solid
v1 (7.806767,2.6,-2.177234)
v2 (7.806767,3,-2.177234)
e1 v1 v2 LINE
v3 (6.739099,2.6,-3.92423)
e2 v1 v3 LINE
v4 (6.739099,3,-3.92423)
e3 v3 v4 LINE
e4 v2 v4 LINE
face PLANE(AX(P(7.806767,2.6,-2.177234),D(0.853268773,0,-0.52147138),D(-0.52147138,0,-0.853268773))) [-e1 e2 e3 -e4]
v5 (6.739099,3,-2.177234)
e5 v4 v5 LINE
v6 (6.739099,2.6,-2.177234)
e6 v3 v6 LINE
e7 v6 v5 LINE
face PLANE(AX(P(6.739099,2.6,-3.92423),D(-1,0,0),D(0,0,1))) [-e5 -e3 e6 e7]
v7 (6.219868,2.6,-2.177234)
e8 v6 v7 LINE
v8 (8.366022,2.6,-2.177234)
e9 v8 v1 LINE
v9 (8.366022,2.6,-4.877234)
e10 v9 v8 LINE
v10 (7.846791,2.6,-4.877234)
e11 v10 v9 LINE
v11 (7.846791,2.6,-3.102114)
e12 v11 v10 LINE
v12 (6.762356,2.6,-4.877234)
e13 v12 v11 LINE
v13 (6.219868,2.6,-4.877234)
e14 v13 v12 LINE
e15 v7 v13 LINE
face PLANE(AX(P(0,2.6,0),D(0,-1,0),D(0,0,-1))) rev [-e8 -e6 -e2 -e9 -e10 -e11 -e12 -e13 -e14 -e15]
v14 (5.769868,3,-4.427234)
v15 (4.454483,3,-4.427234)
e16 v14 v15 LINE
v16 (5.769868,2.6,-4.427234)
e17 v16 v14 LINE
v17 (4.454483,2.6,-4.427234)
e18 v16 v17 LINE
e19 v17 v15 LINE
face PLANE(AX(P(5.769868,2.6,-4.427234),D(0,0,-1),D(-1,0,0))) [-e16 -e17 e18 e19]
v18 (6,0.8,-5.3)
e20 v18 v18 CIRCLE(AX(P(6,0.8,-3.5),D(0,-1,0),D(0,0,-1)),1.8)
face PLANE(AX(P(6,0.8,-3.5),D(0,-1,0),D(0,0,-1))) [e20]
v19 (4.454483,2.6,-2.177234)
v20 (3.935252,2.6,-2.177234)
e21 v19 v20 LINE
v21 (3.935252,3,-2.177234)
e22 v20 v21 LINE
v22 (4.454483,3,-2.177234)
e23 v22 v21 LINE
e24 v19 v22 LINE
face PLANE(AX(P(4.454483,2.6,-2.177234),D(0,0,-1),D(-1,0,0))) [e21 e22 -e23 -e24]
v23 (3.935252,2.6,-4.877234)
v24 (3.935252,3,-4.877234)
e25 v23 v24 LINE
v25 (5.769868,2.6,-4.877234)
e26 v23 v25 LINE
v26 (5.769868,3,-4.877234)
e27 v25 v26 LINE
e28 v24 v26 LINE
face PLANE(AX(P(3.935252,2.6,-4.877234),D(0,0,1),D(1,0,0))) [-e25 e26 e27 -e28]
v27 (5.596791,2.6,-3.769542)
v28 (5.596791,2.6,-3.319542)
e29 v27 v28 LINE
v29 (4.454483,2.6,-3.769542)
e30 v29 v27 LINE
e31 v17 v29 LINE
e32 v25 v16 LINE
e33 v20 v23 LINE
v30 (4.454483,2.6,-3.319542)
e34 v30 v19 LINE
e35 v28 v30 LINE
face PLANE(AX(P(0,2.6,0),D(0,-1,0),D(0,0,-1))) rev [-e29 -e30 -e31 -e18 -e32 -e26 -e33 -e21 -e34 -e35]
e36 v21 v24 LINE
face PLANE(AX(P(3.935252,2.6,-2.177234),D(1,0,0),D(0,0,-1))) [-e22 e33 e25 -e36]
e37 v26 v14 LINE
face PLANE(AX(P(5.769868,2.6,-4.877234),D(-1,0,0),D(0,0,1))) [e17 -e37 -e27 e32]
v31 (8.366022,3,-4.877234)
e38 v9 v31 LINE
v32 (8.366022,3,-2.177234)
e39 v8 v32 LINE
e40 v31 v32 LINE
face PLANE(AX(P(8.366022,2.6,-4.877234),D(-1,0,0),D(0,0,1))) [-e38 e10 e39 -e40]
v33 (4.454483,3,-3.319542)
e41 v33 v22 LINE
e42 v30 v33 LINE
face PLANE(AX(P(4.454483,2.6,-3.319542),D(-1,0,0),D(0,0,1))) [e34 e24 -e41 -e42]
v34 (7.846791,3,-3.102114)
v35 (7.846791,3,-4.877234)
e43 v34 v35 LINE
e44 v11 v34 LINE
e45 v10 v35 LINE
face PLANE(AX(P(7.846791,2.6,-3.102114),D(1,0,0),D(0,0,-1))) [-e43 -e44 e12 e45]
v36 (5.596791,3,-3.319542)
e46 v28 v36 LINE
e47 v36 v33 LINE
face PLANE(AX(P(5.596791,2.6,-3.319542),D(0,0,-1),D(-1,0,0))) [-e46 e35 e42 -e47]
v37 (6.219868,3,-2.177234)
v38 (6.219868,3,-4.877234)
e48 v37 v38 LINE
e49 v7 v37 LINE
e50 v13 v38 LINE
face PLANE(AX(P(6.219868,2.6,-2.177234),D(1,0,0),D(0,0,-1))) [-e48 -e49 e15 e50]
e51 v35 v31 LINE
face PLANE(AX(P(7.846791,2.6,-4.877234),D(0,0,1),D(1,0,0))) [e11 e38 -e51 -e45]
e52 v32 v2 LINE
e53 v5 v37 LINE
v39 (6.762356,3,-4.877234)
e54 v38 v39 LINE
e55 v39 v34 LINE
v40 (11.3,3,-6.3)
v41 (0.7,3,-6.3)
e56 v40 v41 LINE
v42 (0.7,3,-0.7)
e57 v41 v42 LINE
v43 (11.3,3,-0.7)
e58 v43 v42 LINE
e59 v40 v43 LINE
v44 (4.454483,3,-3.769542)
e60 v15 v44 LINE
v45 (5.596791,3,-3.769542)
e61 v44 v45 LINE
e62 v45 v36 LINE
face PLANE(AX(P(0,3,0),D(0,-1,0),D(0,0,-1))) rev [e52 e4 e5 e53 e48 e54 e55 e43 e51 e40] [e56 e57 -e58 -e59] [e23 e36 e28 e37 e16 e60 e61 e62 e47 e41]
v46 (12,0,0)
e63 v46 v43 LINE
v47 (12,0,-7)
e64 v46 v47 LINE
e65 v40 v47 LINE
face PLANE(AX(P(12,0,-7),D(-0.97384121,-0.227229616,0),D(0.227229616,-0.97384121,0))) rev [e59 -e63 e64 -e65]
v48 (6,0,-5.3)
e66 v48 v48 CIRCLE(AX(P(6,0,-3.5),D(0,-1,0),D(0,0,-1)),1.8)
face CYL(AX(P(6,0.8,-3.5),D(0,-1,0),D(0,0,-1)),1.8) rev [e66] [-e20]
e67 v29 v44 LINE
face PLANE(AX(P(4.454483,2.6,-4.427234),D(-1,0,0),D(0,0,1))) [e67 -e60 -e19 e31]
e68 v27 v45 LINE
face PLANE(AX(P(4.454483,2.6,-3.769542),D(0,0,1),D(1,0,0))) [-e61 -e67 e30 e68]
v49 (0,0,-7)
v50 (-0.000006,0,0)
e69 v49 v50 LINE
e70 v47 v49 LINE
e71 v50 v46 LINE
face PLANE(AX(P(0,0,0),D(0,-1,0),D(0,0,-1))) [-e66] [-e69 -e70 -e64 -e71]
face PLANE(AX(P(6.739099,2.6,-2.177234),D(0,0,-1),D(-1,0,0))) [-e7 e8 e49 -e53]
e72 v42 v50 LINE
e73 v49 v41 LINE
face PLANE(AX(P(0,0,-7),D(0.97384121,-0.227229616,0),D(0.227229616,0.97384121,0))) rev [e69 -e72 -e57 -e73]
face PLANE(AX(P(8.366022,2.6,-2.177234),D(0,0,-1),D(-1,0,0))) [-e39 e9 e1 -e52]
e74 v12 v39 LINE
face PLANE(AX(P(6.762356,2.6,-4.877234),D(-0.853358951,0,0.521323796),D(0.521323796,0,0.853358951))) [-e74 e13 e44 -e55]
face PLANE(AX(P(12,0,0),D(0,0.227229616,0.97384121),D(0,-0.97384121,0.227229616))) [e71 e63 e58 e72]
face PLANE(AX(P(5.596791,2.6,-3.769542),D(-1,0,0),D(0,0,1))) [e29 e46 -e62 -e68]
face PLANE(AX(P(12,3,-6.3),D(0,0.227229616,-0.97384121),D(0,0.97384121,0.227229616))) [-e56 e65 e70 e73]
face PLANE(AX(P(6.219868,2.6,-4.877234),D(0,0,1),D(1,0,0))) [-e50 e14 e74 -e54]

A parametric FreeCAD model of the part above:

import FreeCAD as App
import Part
import Sketcher

V = App.Vector
Q = App.Units.Quantity


def add_polygon(sketch, points):
    """Adds a closed chain of lines whose ends are joined by coincident constraints."""
    first, n = sketch.GeometryCount, len(points)
    for a, b in zip(points, points[1:] + points[:1]):
        sketch.addGeometry(Part.LineSegment(App.Vector(*a, 0), App.Vector(*b, 0)), False)
    for i in range(n):
        sketch.addConstraint(Sketcher.Constraint("Coincident", first + i, 2, first + (i + 1) % n, 1))

doc = App.newDocument("Part")
body = doc.addObject("PartDesign::Body", "Body")

# Sketch on XZ plane
sketch1 = doc.addObject("Sketcher::SketchObject", "Sketch")
body.addObject(sketch1)
sketch1.AttachmentSupport = (doc.XZ_Plane, [""])
sketch1.MapMode = "FlatFace"
add_polygon(sketch1, [(0, -7), (0, 0), (12, 0), (12, -7)])  # lines 0-3
sketch1.addConstraint(Sketcher.Constraint("Vertical", 0))
sketch1.addConstraint(Sketcher.Constraint("Horizontal", 1))
sketch1.addConstraint(Sketcher.Constraint("Vertical", 2))
sketch1.addConstraint(Sketcher.Constraint("Horizontal", 3))
sketch1.addConstraint(Sketcher.Constraint("Coincident", 0, 2, -1, 1))
sketch1.addConstraint(Sketcher.Constraint("DistanceX", 1, 1, 1, 2, Q("12 mm")))
sketch1.addConstraint(Sketcher.Constraint("DistanceY", 0, 1, 0, 2, Q("7 mm")))
pad1 = doc.addObject("PartDesign::Pad", "Pad")
body.addObject(pad1)
pad1.Profile = sketch1
pad1.Length = 3
pad1.Reversed = True

# Sketch on XY plane
sketch2 = doc.addObject("Sketcher::SketchObject", "Sketch001")
body.addObject(sketch2)
sketch2.AttachmentSupport = (doc.XY_Plane, [""])
sketch2.MapMode = "FlatFace"
add_polygon(sketch2, [(0, 0), (0.7, 3), (0, 3)])  # lines 0-2
add_polygon(sketch2, [(11.3, 3), (12, 0), (12, 3)])  # lines 3-5
sketch2.addConstraint(Sketcher.Constraint("Horizontal", 1))
sketch2.addConstraint(Sketcher.Constraint("Vertical", 2))
sketch2.addConstraint(Sketcher.Constraint("Vertical", 4))
sketch2.addConstraint(Sketcher.Constraint("Horizontal", 5))
sketch2.addConstraint(Sketcher.Constraint("Coincident", 2, 2, -1, 1))
sketch2.addConstraint(Sketcher.Constraint("PointOnObject", 3, 2, -1))
sketch2.addConstraint(Sketcher.Constraint("Horizontal", 1, 2, 4, 2))
sketch2.addConstraint(Sketcher.Constraint("Equal", 1, 5))
sketch2.addConstraint(Sketcher.Constraint("DistanceY", 2, 2, 2, 1, Q("3 mm")))
sketch2.addConstraint(Sketcher.Constraint("DistanceX", 1, 2, 1, 1, Q("0.7 mm")))
sketch2.addConstraint(Sketcher.Constraint("DistanceX", -1, 1, 3, 2, Q("12 mm")))
pocket1 = doc.addObject("PartDesign::Pocket", "Pocket")
body.addObject(pocket1)
pocket1.Profile = sketch2
pocket1.Length = 7

# Sketch on YZ plane
sketch3 = doc.addObject("Sketcher::SketchObject", "Sketch002")
body.addObject(sketch3)
sketch3.AttachmentSupport = (doc.YZ_Plane, [""])
sketch3.MapMode = "FlatFace"
add_polygon(sketch3, [(0, 0), (3, -0.7), (3, 0)])  # lines 0-2
add_polygon(sketch3, [(3, -7), (3, -6.3), (0, -7)])  # lines 3-5
sketch3.addConstraint(Sketcher.Constraint("Vertical", 1))
sketch3.addConstraint(Sketcher.Constraint("Horizontal", 2))
sketch3.addConstraint(Sketcher.Constraint("Vertical", 3))
sketch3.addConstraint(Sketcher.Constraint("Horizontal", 5))
sketch3.addConstraint(Sketcher.Constraint("Coincident", 2, 2, -1, 1))
sketch3.addConstraint(Sketcher.Constraint("PointOnObject", 4, 2, -2))
sketch3.addConstraint(Sketcher.Constraint("Vertical", 1, 2, 3, 2))
sketch3.addConstraint(Sketcher.Constraint("Equal", 1, 3))
sketch3.addConstraint(Sketcher.Constraint("DistanceX", 2, 2, 2, 1, Q("3 mm")))
sketch3.addConstraint(Sketcher.Constraint("DistanceY", 1, 1, 1, 2, Q("0.7 mm")))
sketch3.addConstraint(Sketcher.Constraint("DistanceY", 4, 2, -1, 1, Q("7 mm")))
pocket2 = doc.addObject("PartDesign::Pocket", "Pocket001")
body.addObject(pocket2)
pocket2.Profile = sketch3
pocket2.Type = "ThroughAll"
pocket2.Midplane = True

# Sketch on XZ plane
sketch4 = doc.addObject("Sketcher::SketchObject", "Sketch003")
body.addObject(sketch4)
sketch4.AttachmentSupport = (doc.XZ_Plane, [""])
sketch4.MapMode = "FlatFace"
sketch4.addGeometry(Part.Circle(V(6, -3.5, 0), V(0, 0, 1), 1.8), False)
sketch4.addConstraint(Sketcher.Constraint("Diameter", 0, Q("3.6 mm")))
sketch4.addConstraint(Sketcher.Constraint("DistanceX", -1, 1, 0, 3, Q("6 mm")))
sketch4.addConstraint(Sketcher.Constraint("DistanceY", 0, 3, -1, 1, Q("3.5 mm")))
pocket3 = doc.addObject("PartDesign::Pocket", "Pocket002")
body.addObject(pocket3)
pocket3.Profile = sketch4
pocket3.Length = 0.8

# Sketch on XZ plane
sketch5 = doc.addObject("Sketcher::SketchObject", "Sketch004")
body.addObject(sketch5)
sketch5.AttachmentSupport = (doc.XZ_Plane, [""])
sketch5.MapMode = "FlatFace"
sketch5.AttachmentOffset = App.Placement(V(0, 0, -3), App.Rotation())
add_polygon(sketch5, [(3.94, -4.88), (3.94, -2.18), (4.45, -2.18), (4.45, -3.32), (5.6, -3.32), (5.6, -3.77), (4.45, -3.77), (4.45, -4.43), (5.77, -4.43), (5.77, -4.88)])  # lines 0-9
add_polygon(sketch5, [(6.22, -4.88), (6.22, -2.18), (6.74, -2.18), (6.74, -3.92), (7.81, -2.18), (8.37, -2.18), (8.37, -4.88), (7.85, -4.88), (7.85, -3.1), (6.76, -4.88)])  # lines 10-19
sketch5.addConstraint(Sketcher.Constraint("Vertical", 0))
sketch5.addConstraint(Sketcher.Constraint("Horizontal", 1))
sketch5.addConstraint(Sketcher.Constraint("Vertical", 2))
sketch5.addConstraint(Sketcher.Constraint("Horizontal", 3))
sketch5.addConstraint(Sketcher.Constraint("Vertical", 4))
sketch5.addConstraint(Sketcher.Constraint("Horizontal", 5))
sketch5.addConstraint(Sketcher.Constraint("Vertical", 6))
sketch5.addConstraint(Sketcher.Constraint("Horizontal", 7))
sketch5.addConstraint(Sketcher.Constraint("Vertical", 8))
sketch5.addConstraint(Sketcher.Constraint("Horizontal", 9))
sketch5.addConstraint(Sketcher.Constraint("Vertical", 10))
sketch5.addConstraint(Sketcher.Constraint("Horizontal", 11))
sketch5.addConstraint(Sketcher.Constraint("Vertical", 12))
sketch5.addConstraint(Sketcher.Constraint("Horizontal", 14))
sketch5.addConstraint(Sketcher.Constraint("Vertical", 15))
sketch5.addConstraint(Sketcher.Constraint("Horizontal", 16))
sketch5.addConstraint(Sketcher.Constraint("Vertical", 17))
sketch5.addConstraint(Sketcher.Constraint("Horizontal", 19))
sketch5.addConstraint(Sketcher.Constraint("Horizontal", 1, 2, 10, 2))
sketch5.addConstraint(Sketcher.Constraint("Horizontal", 11, 2, 13, 2))
sketch5.addConstraint(Sketcher.Constraint("Horizontal", 9, 2, 15, 2))
sketch5.addConstraint(Sketcher.Constraint("Horizontal", 16, 2, 18, 2))
sketch5.addConstraint(Sketcher.Constraint("Vertical", 2, 2, 5, 2))
sketch5.addConstraint(Sketcher.Constraint("Equal", 1, 11))
sketch5.addConstraint(Sketcher.Constraint("Equal", 11, 16))
sketch5.addConstraint(Sketcher.Constraint("Equal", 5, 2))
sketch5.addConstraint(Sketcher.Constraint("Equal", 4, 8))
sketch5.addConstraint(Sketcher.Constraint("DistanceY", 0, 1, 0, 2, Q("2.7 mm")))
sketch5.addConstraint(Sketcher.Constraint("DistanceY", 4, 2, 4, 1, Q("0.45 mm")))
sketch5.addConstraint(Sketcher.Constraint("DistanceX", 4, 2, 16, 2, Q("2.25 mm")))
sketch5.addConstraint(Sketcher.Constraint("DistanceX", 8, 2, 19, 2, Q("0.45 mm")))
sketch5.addConstraint(Sketcher.Constraint("DistanceX", 1, 1, 1, 2, Q("0.519231 mm")))
sketch5.addConstraint(Sketcher.Constraint("DistanceY", 17, 1, 17, 2, Q("1.77512 mm")))
sketch5.addConstraint(Sketcher.Constraint("DistanceX", -1, 1, 11, 2, Q("6.739099 mm")))
sketch5.addConstraint(Sketcher.Constraint("DistanceX", 10, 2, 13, 2, Q("1.586899 mm")))
sketch5.addConstraint(Sketcher.Constraint("DistanceX", 3, 1, 3, 2, Q("1.142308 mm")))
sketch5.addConstraint(Sketcher.Constraint("DistanceX", 7, 1, 7, 2, Q("1.315385 mm")))
sketch5.addConstraint(Sketcher.Constraint("DistanceX", 19, 2, 19, 1, Q("0.542488 mm")))
sketch5.addConstraint(Sketcher.Constraint("DistanceY", 12, 2, 12, 1, Q("1.746995 mm")))
sketch5.addConstraint(Sketcher.Constraint("DistanceY", 12, 2, -1, 1, Q("3.92423 mm")))
pocket4 = doc.addObject("PartDesign::Pocket", "Pocket003")
body.addObject(pocket4)
pocket4.Profile = sketch5
pocket4.Length = 0.4
pocket4.Reversed = True

doc.recompute()
